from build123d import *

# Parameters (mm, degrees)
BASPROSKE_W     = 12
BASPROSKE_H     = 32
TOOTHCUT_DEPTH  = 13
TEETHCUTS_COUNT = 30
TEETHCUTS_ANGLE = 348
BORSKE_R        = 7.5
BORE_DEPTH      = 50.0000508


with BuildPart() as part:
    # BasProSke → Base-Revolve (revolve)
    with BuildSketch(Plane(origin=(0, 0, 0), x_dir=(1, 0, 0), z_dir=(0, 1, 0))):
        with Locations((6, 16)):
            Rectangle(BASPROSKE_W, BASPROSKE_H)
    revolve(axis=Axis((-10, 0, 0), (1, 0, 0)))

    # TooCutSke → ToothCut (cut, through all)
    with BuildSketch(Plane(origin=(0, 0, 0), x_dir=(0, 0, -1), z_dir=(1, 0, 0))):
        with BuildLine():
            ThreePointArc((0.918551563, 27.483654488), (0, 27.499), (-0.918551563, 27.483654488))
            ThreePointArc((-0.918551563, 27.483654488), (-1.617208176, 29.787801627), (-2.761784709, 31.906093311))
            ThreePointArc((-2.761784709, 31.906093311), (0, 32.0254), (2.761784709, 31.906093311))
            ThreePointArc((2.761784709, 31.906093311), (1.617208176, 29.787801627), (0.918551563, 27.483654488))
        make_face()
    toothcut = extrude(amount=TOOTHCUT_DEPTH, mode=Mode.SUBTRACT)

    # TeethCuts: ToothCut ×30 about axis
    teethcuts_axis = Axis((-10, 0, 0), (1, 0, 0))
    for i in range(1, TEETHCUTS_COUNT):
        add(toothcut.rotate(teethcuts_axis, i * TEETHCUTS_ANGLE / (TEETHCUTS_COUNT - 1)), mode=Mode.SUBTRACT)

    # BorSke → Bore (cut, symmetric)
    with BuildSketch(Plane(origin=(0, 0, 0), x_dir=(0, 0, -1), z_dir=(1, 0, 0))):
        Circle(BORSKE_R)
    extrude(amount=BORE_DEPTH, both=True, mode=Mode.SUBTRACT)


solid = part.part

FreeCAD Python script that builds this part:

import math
import FreeCAD as App
import Part
import Sketcher
Q = App.Units.Quantity


def add_polygon(sketch, points):
    """Adds a closed chain of lines whose ends are joined by coincident constraints."""
    first, n = sketch.GeometryCount, len(points)
    for a, b in zip(points, points[1:] + points[:1]):
        sketch.addGeometry(Part.LineSegment(App.Vector(*a, 0), App.Vector(*b, 0)), False)
    for i in range(n):
        sketch.addConstraint(Sketcher.Constraint("Coincident", first + i, 2, first + (i + 1) % n, 1))

doc = App.newDocument("Part")
body = doc.addObject("PartDesign::Body", "Body")

sketch1 = body.newObject("Sketcher::SketchObject", "Sketch")
sketch1.AttachmentSupport = (doc.getObject("XZ_Plane"), [""])
sketch1.MapMode = "FlatFace"
add_polygon(sketch1, [(0, -32), (0, 0), (12, 0), (12, -32)])
sketch1.addConstraint([
    Sketcher.Constraint("Vertical", 0),
    Sketcher.Constraint("Horizontal", 1),
    Sketcher.Constraint("Vertical", 2),
    Sketcher.Constraint("Horizontal", 3),
    Sketcher.Constraint("Coincident", 0, 2, -1, 1),
    Sketcher.Constraint("DistanceX", 1, 1, 1, 2, Q("12 mm")),
    Sketcher.Constraint("DistanceY", 0, 1, 0, 2, Q("32 mm")),
])
revolution = body.newObject("PartDesign::Revolution", "Revolution")
revolution.Profile = sketch1
revolution.ReferenceAxis = (sketch1, ["H_Axis"])
revolution.Angle = 360

sketch2 = body.newObject("Sketcher::SketchObject", "Sketch001")
sketch2.AttachmentSupport = (doc.getObject("YZ_Plane"), [""])
sketch2.MapMode = "FlatFace"
sketch2.addGeometry([
    Part.ArcOfCircle(Part.Circle(App.Vector(0, 0, 0), App.Vector(0, 0, 1), 27.5), math.radians(-1.91), math.radians(1.91)),
    Part.ArcOfCircle(Part.Circle(App.Vector(25.2, -12.7, 0), App.Vector(0, 0, 1), 12), math.radians(56), math.radians(79)),
    Part.ArcOfCircle(Part.Circle(App.Vector(0, 0, 0), App.Vector(0, 0, 1), 32), math.radians(-4.95), math.radians(4.95)),
    Part.ArcOfCircle(Part.Circle(App.Vector(25.2, 12.7, 0), App.Vector(0, 0, 1), 12), math.radians(-79), math.radians(-56)),
], False)
sketch2.addConstraint([
    Sketcher.Constraint("Coincident", 0, 1, 1, 2),
    Sketcher.Constraint("Coincident", 1, 1, 2, 1),
    Sketcher.Constraint("Coincident", 2, 2, 3, 2),
    Sketcher.Constraint("Coincident", 3, 1, 0, 2),
    Sketcher.Constraint("Coincident", 0, 3, -1, 1),
    Sketcher.Constraint("Coincident", 2, 3, -1, 1),
    Sketcher.Constraint("Equal", 1, 3),
    Sketcher.Constraint("Symmetric", 1, 3, 3, 3, -1),
    Sketcher.Constraint("Radius", 1, Q("12 mm")),
    Sketcher.Constraint("Radius", 0, Q("27.499 mm")),
    Sketcher.Constraint("Radius", 2, Q("32.0254 mm")),
    Sketcher.Constraint("DistanceY", 1, 3, -1, 1, Q("12.693642 mm")),
    Sketcher.Constraint("DistanceY", 0, 1, -1, 1, Q("0.918552 mm")),
])
pocket1 = body.newObject("PartDesign::Pocket", "Pocket")
pocket1.Profile = sketch2
pocket1.Type = "ThroughAll"
pocket1.Reversed = True
doc.recompute()

polarpattern = body.newObject("PartDesign::PolarPattern", "PolarPattern")
polarpattern.Originals = [pocket1]
polarpattern.Axis = (doc.getObject("X_Axis"), [""])
polarpattern.Angle = 360
polarpattern.Occurrences = 30
body.Tip = polarpattern

sketch3 = body.newObject("Sketcher::SketchObject", "Sketch002")
sketch3.AttachmentSupport = (doc.getObject("YZ_Plane"), [""])
sketch3.MapMode = "FlatFace"
sketch3.addGeometry(Part.Circle(App.Vector(0, 0, 0), App.Vector(0, 0, 1), 8), False)
sketch3.addConstraint([
    Sketcher.Constraint("Coincident", 0, 3, -1, 1),
    Sketcher.Constraint("Diameter", 0, Q("15 mm")),
])
pocket2 = body.newObject("PartDesign::Pocket", "Pocket001")
pocket2.Profile = sketch3
pocket2.Length = 100.000102
pocket2.Midplane = True

doc.recompute()
